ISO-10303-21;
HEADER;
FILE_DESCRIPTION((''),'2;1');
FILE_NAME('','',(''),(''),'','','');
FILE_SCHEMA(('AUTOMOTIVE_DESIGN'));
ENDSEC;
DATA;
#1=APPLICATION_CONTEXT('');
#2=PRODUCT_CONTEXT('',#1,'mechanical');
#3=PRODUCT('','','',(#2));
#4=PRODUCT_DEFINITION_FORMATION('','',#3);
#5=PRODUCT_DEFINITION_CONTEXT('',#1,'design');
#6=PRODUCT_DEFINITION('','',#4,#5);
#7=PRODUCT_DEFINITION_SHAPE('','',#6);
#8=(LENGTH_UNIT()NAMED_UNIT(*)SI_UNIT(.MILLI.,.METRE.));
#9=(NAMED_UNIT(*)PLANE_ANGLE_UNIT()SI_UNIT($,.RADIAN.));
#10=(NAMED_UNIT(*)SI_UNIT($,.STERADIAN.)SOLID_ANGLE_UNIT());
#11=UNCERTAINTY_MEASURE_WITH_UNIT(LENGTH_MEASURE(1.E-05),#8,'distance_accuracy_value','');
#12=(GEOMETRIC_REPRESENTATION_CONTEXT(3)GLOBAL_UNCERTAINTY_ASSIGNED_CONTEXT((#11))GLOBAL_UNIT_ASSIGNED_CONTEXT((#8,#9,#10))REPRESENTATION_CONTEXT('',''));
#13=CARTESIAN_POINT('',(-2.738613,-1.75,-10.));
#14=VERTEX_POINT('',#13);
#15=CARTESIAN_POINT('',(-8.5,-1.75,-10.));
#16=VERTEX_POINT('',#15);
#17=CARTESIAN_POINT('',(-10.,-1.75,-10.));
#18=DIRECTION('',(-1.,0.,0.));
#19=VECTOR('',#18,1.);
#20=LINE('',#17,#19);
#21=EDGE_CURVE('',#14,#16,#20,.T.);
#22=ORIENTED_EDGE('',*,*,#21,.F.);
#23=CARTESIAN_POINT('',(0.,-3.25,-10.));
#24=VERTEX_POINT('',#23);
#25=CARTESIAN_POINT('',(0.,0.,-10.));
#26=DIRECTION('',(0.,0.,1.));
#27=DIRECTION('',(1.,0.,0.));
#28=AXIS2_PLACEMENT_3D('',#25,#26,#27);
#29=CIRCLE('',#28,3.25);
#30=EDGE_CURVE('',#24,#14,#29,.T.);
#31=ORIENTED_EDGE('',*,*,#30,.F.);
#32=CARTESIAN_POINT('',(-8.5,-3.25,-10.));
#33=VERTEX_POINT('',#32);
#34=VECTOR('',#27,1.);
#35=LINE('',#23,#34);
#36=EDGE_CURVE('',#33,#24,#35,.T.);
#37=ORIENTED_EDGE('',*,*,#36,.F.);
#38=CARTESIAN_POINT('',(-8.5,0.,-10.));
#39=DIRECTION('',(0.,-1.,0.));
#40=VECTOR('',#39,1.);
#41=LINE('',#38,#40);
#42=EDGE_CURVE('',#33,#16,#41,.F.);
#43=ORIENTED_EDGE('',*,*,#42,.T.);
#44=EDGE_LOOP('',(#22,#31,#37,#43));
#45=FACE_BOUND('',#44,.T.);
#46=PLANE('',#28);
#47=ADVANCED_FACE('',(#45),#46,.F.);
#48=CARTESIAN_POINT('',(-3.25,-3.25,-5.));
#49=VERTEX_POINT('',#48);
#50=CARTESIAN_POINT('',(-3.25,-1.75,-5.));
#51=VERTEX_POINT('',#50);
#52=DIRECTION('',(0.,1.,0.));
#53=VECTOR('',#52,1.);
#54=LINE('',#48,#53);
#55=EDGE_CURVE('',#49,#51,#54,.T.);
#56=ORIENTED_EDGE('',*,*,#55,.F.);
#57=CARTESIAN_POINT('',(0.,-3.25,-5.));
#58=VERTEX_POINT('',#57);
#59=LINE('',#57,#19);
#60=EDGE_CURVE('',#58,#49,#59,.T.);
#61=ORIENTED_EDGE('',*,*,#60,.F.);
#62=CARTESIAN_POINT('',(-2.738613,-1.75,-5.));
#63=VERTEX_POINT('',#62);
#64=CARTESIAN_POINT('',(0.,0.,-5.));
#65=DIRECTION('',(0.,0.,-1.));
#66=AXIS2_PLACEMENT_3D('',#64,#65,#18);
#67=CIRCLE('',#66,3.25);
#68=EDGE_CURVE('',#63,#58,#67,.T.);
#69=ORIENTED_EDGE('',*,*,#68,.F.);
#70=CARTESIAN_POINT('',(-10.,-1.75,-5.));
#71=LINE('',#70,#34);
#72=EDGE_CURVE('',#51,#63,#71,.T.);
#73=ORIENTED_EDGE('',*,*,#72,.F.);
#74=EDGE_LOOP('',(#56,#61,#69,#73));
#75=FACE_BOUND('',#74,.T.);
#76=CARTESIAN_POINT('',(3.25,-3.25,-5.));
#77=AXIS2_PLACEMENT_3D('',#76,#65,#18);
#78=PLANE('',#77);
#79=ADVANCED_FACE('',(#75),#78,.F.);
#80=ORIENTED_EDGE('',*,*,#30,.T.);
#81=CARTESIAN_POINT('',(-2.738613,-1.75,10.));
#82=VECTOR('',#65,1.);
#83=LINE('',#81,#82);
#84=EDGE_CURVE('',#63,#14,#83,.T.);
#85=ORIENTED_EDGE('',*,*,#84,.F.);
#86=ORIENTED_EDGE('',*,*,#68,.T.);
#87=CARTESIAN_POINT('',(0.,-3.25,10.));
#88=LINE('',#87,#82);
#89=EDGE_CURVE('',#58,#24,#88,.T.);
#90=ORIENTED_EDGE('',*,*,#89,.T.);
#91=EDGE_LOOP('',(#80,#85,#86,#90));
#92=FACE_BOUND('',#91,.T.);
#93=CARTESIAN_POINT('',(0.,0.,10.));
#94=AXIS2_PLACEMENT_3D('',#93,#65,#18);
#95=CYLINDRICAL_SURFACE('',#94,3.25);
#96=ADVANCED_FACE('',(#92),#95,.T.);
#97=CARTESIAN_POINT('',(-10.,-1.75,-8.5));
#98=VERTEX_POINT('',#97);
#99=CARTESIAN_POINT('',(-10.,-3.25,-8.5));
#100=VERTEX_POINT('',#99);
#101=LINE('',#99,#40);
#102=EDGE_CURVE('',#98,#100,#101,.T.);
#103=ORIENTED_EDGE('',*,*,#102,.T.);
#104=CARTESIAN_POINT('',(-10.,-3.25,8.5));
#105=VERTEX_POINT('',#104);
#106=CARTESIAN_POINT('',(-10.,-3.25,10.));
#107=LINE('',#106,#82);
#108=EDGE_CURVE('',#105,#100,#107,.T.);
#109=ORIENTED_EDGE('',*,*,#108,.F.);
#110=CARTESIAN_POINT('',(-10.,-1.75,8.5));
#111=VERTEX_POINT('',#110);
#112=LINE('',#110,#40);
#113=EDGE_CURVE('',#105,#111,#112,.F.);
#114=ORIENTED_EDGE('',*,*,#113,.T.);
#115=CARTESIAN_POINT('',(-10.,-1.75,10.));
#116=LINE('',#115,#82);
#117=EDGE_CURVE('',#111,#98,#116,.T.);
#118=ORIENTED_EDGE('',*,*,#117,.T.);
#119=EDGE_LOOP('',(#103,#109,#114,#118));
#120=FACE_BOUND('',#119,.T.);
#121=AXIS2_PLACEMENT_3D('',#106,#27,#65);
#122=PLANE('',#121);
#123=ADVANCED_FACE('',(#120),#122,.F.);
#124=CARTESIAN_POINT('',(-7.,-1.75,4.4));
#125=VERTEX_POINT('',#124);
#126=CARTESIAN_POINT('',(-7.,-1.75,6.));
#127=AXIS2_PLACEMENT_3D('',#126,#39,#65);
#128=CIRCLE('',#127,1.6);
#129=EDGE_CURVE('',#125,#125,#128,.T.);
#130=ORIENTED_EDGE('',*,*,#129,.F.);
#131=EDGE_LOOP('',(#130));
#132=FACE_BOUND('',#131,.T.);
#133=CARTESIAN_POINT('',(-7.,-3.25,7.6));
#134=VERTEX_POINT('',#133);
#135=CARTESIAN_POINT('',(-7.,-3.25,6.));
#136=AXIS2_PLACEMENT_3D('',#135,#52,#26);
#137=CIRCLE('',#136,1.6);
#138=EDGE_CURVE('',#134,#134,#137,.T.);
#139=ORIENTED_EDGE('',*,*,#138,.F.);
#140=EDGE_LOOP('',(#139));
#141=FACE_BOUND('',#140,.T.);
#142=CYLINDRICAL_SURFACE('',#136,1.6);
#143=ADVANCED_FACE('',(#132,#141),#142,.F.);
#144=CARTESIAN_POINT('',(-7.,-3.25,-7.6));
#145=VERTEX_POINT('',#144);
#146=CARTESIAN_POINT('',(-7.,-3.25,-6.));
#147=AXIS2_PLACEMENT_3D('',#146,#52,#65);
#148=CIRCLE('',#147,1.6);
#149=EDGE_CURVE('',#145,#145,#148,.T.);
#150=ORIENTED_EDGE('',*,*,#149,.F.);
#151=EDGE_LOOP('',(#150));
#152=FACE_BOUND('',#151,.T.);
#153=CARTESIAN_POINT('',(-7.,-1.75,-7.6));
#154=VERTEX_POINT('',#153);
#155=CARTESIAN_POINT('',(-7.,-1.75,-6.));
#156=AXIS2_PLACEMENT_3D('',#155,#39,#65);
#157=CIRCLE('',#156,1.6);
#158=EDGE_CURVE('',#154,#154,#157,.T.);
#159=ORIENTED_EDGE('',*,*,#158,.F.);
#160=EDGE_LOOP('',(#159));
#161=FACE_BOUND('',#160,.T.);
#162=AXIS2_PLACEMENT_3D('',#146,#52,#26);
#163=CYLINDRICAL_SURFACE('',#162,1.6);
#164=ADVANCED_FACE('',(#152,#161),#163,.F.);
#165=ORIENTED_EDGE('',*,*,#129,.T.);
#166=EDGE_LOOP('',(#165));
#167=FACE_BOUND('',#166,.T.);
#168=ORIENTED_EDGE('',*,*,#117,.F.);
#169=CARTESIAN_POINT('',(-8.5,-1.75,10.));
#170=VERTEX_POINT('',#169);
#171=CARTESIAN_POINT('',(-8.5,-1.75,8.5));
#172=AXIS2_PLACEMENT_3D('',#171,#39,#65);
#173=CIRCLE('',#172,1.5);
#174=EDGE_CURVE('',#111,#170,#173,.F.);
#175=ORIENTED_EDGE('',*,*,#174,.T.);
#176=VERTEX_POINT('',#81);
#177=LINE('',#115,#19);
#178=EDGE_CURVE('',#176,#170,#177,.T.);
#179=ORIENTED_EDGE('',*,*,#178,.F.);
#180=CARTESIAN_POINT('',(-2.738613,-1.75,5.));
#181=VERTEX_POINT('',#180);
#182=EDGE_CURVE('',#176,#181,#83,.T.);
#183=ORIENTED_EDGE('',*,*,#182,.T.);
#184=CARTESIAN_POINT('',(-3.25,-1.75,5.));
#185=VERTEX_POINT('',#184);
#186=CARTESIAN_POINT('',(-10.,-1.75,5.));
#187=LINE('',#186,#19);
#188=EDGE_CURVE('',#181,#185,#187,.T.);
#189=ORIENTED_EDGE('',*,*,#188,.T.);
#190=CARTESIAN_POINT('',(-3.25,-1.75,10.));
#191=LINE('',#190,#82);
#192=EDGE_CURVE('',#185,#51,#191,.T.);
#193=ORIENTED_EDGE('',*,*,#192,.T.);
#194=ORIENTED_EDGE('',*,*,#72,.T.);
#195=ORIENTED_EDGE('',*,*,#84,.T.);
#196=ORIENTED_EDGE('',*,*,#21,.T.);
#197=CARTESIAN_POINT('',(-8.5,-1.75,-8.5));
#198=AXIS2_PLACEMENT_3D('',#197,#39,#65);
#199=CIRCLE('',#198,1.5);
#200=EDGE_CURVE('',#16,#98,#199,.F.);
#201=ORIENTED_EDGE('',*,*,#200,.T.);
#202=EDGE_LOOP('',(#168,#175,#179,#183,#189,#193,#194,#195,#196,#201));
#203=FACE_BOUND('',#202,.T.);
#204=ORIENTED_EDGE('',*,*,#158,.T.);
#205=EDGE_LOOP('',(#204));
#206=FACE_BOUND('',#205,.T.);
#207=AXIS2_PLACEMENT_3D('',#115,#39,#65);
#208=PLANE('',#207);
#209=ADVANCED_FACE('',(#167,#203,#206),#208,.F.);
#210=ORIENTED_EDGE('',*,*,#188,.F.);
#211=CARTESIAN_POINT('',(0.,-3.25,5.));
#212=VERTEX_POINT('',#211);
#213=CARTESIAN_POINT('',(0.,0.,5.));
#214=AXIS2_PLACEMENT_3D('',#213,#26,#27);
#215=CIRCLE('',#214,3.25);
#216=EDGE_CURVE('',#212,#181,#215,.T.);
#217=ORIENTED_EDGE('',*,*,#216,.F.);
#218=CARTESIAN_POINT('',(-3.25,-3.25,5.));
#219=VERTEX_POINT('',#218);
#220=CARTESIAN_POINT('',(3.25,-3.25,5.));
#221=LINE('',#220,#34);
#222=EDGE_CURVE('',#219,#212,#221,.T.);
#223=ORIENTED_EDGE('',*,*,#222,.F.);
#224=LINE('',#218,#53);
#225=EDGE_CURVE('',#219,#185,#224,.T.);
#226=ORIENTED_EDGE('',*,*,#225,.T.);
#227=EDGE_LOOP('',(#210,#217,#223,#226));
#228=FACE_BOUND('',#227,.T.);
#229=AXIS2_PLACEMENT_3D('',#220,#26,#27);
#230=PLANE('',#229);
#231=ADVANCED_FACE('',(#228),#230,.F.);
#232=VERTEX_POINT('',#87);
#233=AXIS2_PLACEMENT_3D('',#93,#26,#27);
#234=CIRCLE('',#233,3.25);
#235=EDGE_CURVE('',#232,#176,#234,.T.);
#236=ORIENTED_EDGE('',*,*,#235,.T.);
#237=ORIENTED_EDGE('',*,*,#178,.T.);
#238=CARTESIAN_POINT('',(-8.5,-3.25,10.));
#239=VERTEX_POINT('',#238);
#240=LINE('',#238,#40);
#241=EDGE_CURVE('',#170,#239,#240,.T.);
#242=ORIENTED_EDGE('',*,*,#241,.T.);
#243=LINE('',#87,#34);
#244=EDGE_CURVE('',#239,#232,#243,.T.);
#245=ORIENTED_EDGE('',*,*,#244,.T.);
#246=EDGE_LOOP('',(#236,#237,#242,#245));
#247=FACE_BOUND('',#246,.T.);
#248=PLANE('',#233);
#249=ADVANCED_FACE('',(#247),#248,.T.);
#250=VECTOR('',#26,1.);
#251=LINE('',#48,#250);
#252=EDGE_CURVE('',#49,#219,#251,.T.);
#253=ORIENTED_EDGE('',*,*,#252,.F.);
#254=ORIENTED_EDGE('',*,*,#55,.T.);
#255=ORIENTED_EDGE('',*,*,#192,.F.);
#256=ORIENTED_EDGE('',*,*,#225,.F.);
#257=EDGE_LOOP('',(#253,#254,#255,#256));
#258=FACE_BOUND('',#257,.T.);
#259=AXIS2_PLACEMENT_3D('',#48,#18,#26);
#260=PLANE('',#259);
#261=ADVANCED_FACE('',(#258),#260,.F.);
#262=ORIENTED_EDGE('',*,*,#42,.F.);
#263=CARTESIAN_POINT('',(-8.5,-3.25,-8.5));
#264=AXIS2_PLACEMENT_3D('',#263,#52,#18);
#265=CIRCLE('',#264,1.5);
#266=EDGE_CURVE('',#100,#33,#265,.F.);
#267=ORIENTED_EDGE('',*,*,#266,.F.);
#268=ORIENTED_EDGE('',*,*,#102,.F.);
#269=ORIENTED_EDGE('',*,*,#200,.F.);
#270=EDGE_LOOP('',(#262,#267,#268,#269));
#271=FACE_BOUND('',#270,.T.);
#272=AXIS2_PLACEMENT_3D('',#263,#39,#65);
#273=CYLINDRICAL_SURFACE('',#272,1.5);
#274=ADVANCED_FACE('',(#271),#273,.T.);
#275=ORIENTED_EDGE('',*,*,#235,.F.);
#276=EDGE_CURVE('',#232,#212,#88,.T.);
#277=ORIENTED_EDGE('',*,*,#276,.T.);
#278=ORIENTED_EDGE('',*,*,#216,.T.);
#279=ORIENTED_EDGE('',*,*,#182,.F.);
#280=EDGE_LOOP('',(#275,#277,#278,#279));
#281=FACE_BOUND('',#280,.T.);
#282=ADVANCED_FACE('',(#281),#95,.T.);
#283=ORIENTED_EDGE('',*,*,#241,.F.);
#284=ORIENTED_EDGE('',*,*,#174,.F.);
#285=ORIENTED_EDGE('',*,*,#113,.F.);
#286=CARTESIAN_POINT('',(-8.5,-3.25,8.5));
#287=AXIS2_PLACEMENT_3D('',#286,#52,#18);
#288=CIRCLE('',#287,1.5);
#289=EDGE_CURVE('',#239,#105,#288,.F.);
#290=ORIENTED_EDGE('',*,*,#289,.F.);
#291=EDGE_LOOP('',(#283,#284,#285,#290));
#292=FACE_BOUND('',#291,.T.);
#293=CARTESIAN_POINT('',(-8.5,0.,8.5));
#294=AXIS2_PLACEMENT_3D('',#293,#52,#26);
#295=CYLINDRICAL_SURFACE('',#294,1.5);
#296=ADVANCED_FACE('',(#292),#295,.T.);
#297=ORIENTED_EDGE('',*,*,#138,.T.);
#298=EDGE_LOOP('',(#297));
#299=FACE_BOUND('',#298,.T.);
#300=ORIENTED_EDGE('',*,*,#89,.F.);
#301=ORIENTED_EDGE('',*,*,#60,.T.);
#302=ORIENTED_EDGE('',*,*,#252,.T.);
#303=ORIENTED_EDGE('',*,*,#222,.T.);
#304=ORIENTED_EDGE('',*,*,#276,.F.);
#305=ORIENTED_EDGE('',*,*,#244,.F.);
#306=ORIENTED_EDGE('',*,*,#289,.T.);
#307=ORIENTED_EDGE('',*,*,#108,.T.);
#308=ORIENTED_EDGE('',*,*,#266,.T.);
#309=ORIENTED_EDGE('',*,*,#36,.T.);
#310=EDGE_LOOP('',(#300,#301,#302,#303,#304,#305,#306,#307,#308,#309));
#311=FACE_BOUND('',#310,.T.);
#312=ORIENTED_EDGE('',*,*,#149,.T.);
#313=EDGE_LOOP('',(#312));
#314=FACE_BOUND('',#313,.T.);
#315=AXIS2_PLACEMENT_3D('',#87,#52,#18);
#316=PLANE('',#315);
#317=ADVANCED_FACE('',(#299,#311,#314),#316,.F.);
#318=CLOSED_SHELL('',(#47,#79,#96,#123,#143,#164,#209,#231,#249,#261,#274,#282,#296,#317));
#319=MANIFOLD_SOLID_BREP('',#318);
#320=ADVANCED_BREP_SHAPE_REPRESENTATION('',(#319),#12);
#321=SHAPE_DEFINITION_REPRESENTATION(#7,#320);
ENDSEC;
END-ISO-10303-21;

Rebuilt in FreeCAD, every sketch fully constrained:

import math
import FreeCAD as App
import Part
import Sketcher
from FreeCAD import Vector


def edges_at(feature, points):
    """Names of the edges that pass closest to the given points."""
    edges = feature.Shape.Edges
    near = lambda p: min(range(len(edges)), key=lambda i: edges[i].distToShape(Part.Vertex(*p))[0])
    return sorted({f"Edge{near(p) + 1}" for p in points})

doc = App.newDocument("Part")
params = doc.addObject("Spreadsheet::Sheet", "Params")
for row, (alias, value) in enumerate([
    ("sketch1_width", "10 mm"),
    ("sketch1_radius", "3.25 mm"),
    ("sketch1_height", "1.5 mm"),
    ("pad1_length", "20 mm"),
    ("sketch2_diameter", "3.2 mm"),
    ("sketch2_height", "10 mm"),
    ("sketch2_width", "6.5 mm"),
    ("fillet_radius", "1.5 mm"),
], start=1):
    params.set(f"A{row}", alias)
    params.set(f"B{row}", "=" + value)
    params.setAlias(f"B{row}", alias)

body = doc.addObject("PartDesign::Body", "Body")

sketch1 = body.newObject("Sketcher::SketchObject", "Sketch")
sketch1.AttachmentSupport = (doc.getObject("XY_Plane"), [""])
sketch1.MapMode = "FlatFace"
sketch1.addGeometry([
    Part.LineSegment(Vector(-10, -3.2, 0), Vector(0, -3.2, 0)),
    Part.ArcOfCircle(Part.Circle(Vector(0, 0, 0), Vector(0, 0, 1), 3.2), math.radians(-90), math.radians(213)),
    Part.LineSegment(Vector(-2.7, -1.8, 0), Vector(-10, -1.8, 0)),
    Part.LineSegment(Vector(-10, -1.8, 0), Vector(-10, -3.2, 0)),
], False)
sketch1.addConstraint([
    Sketcher.Constraint("Tangent", 0, 2, 1, 1),
    Sketcher.Constraint("Coincident", 1, 2, 2, 1),
    Sketcher.Constraint("Coincident", 2, 2, 3, 1),
    Sketcher.Constraint("Coincident", 3, 2, 0, 1),
    Sketcher.Constraint("Horizontal", 0),
    Sketcher.Constraint("Horizontal", 2),
    Sketcher.Constraint("Vertical", 3),
    Sketcher.Constraint("Coincident", 1, 3, -1, 1),
    Sketcher.Constraint("DistanceX", 0, 1, 0, 2, 10.0),
    Sketcher.Constraint("Radius", 1, 3.25),
    Sketcher.Constraint("DistanceY", 3, 2, 3, 1, 1.5),
])
sketch1.setExpression("Constraints[8]", "Params.sketch1_width")
sketch1.setExpression("Constraints[9]", "Params.sketch1_radius")
sketch1.setExpression("Constraints[10]", "Params.sketch1_height")
pad1 = body.newObject("PartDesign::Pad", "Pad")
pad1.Profile = sketch1
pad1.setExpression("Length", "Params.pad1_length")
pad1.Midplane = True

sketch2 = body.newObject("Sketcher::SketchObject", "Sketch001")
sketch2.AttachmentSupport = (doc.getObject("XZ_Plane"), [""])
sketch2.MapMode = "FlatFace"
sketch2.AttachmentOffset = App.Placement(Vector(0, 0, 1.75), App.Rotation())
sketch2.addGeometry([
    Part.Circle(Vector(-7, 6, 0), Vector(0, 0, 1), 1.6),
    Part.Circle(Vector(-7, -6, 0), Vector(0, 0, 1), 1.6),
    Part.LineSegment(Vector(-3.2, -5, 0), Vector(-3.2, 5, 0)),
    Part.LineSegment(Vector(-3.2, 5, 0), Vector(3.2, 5, 0)),
    Part.LineSegment(Vector(3.2, 5, 0), Vector(3.2, -5, 0)),
    Part.LineSegment(Vector(3.2, -5, 0), Vector(-3.2, -5, 0)),
], False)
sketch2.addConstraint([
    Sketcher.Constraint("Coincident", 2, 2, 3, 1),
    Sketcher.Constraint("Coincident", 3, 2, 4, 1),
    Sketcher.Constraint("Coincident", 4, 2, 5, 1),
    Sketcher.Constraint("Coincident", 5, 2, 2, 1),
    Sketcher.Constraint("Vertical", 2),
    Sketcher.Constraint("Horizontal", 3),
    Sketcher.Constraint("Vertical", 4),
    Sketcher.Constraint("Horizontal", 5),
    Sketcher.Constraint("Equal", 0, 1),
    Sketcher.Constraint("Symmetric", 2, 2, 4, 2, -1, 1),
    Sketcher.Constraint("Symmetric", 0, 3, 1, 3, -1),
    Sketcher.Constraint("Diameter", 0, 3.2),
    Sketcher.Constraint("DistanceY", 2, 1, 2, 2, 10.0),
    Sketcher.Constraint("DistanceX", 3, 1, 3, 2, 6.5),
    Sketcher.Constraint("DistanceX", 0, 3, -1, 1, 7.0),
    Sketcher.Constraint("DistanceY", -1, 1, 0, 3, 6.0),
])
sketch2.setExpression("Constraints[11]", "Params.sketch2_diameter")
sketch2.setExpression("Constraints[12]", "Params.sketch2_height")
sketch2.setExpression("Constraints[13]", "Params.sketch2_width")
pocket1 = body.newObject("PartDesign::Pocket", "Pocket")
pocket1.Profile = sketch2
pocket1.Type = "ThroughAll"
pocket1.Midplane = True
doc.recompute()

fillet = body.newObject("PartDesign::Fillet", "Fillet")
fillet.Base = (pocket1, edges_at(pocket1, [(-10, -2.5, 10), (-10, -2.5, -10)]))
fillet.setExpression("Radius", "Params.fillet_radius")

doc.recompute()
